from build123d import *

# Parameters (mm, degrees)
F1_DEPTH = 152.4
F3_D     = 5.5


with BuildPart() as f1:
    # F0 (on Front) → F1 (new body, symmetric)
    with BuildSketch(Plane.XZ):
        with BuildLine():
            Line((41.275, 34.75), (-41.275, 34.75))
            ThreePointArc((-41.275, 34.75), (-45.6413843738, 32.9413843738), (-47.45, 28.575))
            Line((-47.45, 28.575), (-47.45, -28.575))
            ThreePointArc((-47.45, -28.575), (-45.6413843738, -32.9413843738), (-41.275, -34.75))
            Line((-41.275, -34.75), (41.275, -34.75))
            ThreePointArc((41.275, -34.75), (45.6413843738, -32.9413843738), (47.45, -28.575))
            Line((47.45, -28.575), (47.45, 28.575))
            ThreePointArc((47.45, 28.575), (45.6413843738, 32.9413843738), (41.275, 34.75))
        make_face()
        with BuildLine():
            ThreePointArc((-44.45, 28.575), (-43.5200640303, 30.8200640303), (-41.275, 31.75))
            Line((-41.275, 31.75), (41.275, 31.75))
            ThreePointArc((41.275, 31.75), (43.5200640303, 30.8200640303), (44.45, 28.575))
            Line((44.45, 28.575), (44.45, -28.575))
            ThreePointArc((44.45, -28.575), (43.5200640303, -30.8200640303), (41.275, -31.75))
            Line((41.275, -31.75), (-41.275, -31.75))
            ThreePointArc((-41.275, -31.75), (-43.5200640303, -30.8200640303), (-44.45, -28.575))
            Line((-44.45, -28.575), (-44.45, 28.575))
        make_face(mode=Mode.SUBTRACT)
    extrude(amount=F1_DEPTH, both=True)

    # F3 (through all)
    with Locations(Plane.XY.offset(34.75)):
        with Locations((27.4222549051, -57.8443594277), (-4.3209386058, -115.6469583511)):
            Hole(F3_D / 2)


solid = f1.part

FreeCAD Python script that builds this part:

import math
import FreeCAD as App
import Part
import Sketcher
from FreeCAD import Vector
Q = App.Units.Quantity

doc = App.newDocument("Part")
params = doc.addObject("Spreadsheet::Sheet", "Params")
for row, (alias, value) in enumerate([
    ("sketch1_radius", "0.125 in"),
    ("sketch1_width", "3.25 in"),
    ("sketch1_height", "2.25 in"),
    ("pad1_length", "12 in"),
    ("hole_diameter", "5.5 mm"),
], start=1):
    params.set(f"A{row}", alias)
    params.set(f"B{row}", "=" + value)
    params.setAlias(f"B{row}", alias)

body = doc.addObject("PartDesign::Body", "Body")

sketch1 = body.newObject("Sketcher::SketchObject", "Sketch")
sketch1.AttachmentSupport = (doc.getObject("XZ_Plane"), [""])
sketch1.MapMode = "FlatFace"
sketch1.addGeometry([
    Part.LineSegment(Vector(41.3, 34.8, 0), Vector(-41.3, 34.8, 0)),
    Part.ArcOfCircle(Part.Circle(Vector(-41.3, 28.6, 0), Vector(0, 0, 1), 6.2), math.radians(90), math.radians(180)),
    Part.LineSegment(Vector(-47.5, 28.6, 0), Vector(-47.5, -28.6, 0)),
    Part.ArcOfCircle(Part.Circle(Vector(-41.3, -28.6, 0), Vector(0, 0, 1), 6.2), math.radians(180), math.radians(270)),
    Part.LineSegment(Vector(-41.3, -34.8, 0), Vector(41.3, -34.8, 0)),
    Part.ArcOfCircle(Part.Circle(Vector(41.3, -28.6, 0), Vector(0, 0, 1), 6.2), math.radians(-90), math.radians(0)),
    Part.LineSegment(Vector(47.5, -28.6, 0), Vector(47.5, 28.6, 0)),
    Part.ArcOfCircle(Part.Circle(Vector(41.3, 28.6, 0), Vector(0, 0, 1), 6.2), math.radians(0), math.radians(90)),
    Part.LineSegment(Vector(-44.5, -28.6, 0), Vector(-44.5, 28.6, 0)),
    Part.ArcOfCircle(Part.Circle(Vector(-41.3, 28.6, 0), Vector(0, 0, 1), 3.2), math.radians(90), math.radians(180)),
    Part.LineSegment(Vector(-41.3, 31.8, 0), Vector(41.3, 31.8, 0)),
    Part.ArcOfCircle(Part.Circle(Vector(41.3, 28.6, 0), Vector(0, 0, 1), 3.2), math.radians(0), math.radians(90)),
    Part.LineSegment(Vector(44.5, 28.6, 0), Vector(44.5, -28.6, 0)),
    Part.ArcOfCircle(Part.Circle(Vector(41.3, -28.6, 0), Vector(0, 0, 1), 3.2), math.radians(-90), math.radians(0)),
    Part.LineSegment(Vector(41.3, -31.8, 0), Vector(-41.3, -31.8, 0)),
    Part.ArcOfCircle(Part.Circle(Vector(-41.3, -28.6, 0), Vector(0, 0, 1), 3.2), math.radians(180), math.radians(270)),
], False)
sketch1.addConstraint([
    Sketcher.Constraint("Tangent", 0, 2, 1, 1),
    Sketcher.Constraint("Tangent", 1, 2, 2, 1),
    Sketcher.Constraint("Tangent", 2, 2, 3, 1),
    Sketcher.Constraint("Tangent", 3, 2, 4, 1),
    Sketcher.Constraint("Tangent", 4, 2, 5, 1),
    Sketcher.Constraint("Tangent", 5, 2, 6, 1),
    Sketcher.Constraint("Tangent", 6, 2, 7, 1),
    Sketcher.Constraint("Tangent", 7, 2, 0, 1),
    Sketcher.Constraint("Tangent", 8, 2, 9, 2),
    Sketcher.Constraint("Tangent", 9, 1, 10, 1),
    Sketcher.Constraint("Tangent", 10, 2, 11, 2),
    Sketcher.Constraint("Tangent", 11, 1, 12, 1),
    Sketcher.Constraint("Tangent", 12, 2, 13, 2),
    Sketcher.Constraint("Tangent", 13, 1, 14, 1),
    Sketcher.Constraint("Tangent", 14, 2, 15, 2),
    Sketcher.Constraint("Tangent", 15, 1, 8, 1),
    Sketcher.Constraint("Horizontal", 0),
    Sketcher.Constraint("Vertical", 2),
    Sketcher.Constraint("Horizontal", 4),
    Sketcher.Constraint("Vertical", 6),
    Sketcher.Constraint("Vertical", 8),
    Sketcher.Constraint("Horizontal", 10),
    Sketcher.Constraint("Vertical", 12),
    Sketcher.Constraint("Horizontal", 14),
    Sketcher.Constraint("Coincident", 9, 3, 1, 3),
    Sketcher.Constraint("Coincident", 11, 3, 7, 3),
    Sketcher.Constraint("Coincident", 13, 3, 5, 3),
    Sketcher.Constraint("Equal", 1, 3),
    Sketcher.Constraint("Equal", 3, 5),
    Sketcher.Constraint("Equal", 5, 7),
    Sketcher.Constraint("Equal", 13, 15),
    Sketcher.Constraint("Symmetric", 1, 3, 5, 3, -1, 1),
    Sketcher.Constraint("Radius", 9, Q("0.125 in")),
    Sketcher.Constraint("DistanceX", 0, 2, 0, 1, Q("3.25 in")),
    Sketcher.Constraint("DistanceY", 2, 2, 2, 1, Q("2.25 in")),
    Sketcher.Constraint("Radius", 1, Q("6.175 mm")),
])
sketch1.setExpression("Constraints[32]", "Params.sketch1_radius")
sketch1.setExpression("Constraints[33]", "Params.sketch1_width")
sketch1.setExpression("Constraints[34]", "Params.sketch1_height")
pad1 = body.newObject("PartDesign::Pad", "Pad")
pad1.Profile = sketch1
pad1.setExpression("Length", "Params.pad1_length")
pad1.Midplane = True

sketch2 = body.newObject("Sketcher::SketchObject", "Sketch001")
sketch2.AttachmentSupport = (doc.getObject("XY_Plane"), [""])
sketch2.MapMode = "FlatFace"
sketch2.AttachmentOffset = App.Placement(Vector(0, 0, 34.75), App.Rotation())
sketch2.addGeometry([
    Part.Circle(Vector(27.4, -57.8, 0), Vector(0, 0, 1), 2.8),
    Part.Circle(Vector(-4.3, -115.6, 0), Vector(0, 0, 1), 2.8),
], False)
sketch2.addConstraint([
    Sketcher.Constraint("Equal", 0, 1),
    Sketcher.Constraint("Diameter", 0, Q("5.5 mm")),
    Sketcher.Constraint("DistanceY", 1, 3, 0, 3, Q("57.802599 mm")),
    Sketcher.Constraint("DistanceY", 0, 3, -1, 1, Q("57.844359 mm")),
    Sketcher.Constraint("DistanceX", 1, 3, -1, 1, Q("4.320939 mm")),
    Sketcher.Constraint("DistanceX", -1, 1, 0, 3, Q("27.422255 mm")),
])
doc.recompute()
hole = body.newObject("PartDesign::Hole", "Hole")
hole.Profile = sketch2
hole.ThreadType = "None"
hole.setExpression("Diameter", "Params.hole_diameter")
hole.DepthType = "ThroughAll"

doc.recompute()
